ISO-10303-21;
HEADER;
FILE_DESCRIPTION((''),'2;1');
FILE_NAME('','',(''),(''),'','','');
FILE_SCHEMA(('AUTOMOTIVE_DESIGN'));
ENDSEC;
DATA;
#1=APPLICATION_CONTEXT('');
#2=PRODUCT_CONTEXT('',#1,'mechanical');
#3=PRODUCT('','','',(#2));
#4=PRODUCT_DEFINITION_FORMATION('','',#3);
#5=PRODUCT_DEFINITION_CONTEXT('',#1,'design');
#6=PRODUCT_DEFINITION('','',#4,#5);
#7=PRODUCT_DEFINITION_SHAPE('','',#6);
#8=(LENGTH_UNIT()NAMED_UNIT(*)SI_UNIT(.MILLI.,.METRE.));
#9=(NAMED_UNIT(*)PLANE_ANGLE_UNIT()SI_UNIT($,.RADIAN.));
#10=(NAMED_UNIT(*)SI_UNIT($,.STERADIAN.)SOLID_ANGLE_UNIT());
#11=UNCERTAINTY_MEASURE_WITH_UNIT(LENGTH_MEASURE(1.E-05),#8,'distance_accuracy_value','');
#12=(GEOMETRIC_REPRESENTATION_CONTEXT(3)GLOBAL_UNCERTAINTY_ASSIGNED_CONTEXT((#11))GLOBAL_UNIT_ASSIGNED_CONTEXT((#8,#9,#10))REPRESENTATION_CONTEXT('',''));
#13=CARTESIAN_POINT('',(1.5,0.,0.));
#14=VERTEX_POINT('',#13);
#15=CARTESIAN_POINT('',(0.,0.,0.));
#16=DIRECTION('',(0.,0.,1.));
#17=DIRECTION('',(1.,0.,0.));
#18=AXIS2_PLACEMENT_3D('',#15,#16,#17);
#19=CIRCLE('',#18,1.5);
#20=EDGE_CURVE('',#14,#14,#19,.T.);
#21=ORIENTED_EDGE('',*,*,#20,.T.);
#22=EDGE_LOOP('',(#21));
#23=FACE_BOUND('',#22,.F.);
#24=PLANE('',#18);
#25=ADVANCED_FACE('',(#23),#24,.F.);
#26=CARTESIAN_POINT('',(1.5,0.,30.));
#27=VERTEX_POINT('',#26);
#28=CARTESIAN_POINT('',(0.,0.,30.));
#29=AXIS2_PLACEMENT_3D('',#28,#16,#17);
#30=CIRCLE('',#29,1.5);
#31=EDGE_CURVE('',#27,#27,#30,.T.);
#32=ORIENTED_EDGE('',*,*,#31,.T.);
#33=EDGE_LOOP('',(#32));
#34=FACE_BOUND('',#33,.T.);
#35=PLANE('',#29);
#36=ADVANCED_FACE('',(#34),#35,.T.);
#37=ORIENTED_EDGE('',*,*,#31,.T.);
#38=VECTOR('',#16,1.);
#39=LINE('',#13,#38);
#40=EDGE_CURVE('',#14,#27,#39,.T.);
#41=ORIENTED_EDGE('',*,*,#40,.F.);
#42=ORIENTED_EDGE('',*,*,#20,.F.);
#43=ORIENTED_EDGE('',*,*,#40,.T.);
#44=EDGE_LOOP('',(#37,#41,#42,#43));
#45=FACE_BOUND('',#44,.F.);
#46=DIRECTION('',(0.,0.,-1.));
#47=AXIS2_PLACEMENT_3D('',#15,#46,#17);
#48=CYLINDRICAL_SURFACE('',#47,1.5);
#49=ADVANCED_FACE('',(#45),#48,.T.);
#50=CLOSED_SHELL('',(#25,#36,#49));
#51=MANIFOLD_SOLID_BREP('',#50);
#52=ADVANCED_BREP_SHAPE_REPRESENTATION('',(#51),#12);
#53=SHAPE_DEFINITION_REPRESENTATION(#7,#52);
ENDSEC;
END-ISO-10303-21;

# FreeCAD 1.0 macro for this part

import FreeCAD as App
import Part
import Sketcher

doc = App.newDocument("Part")
params = doc.addObject("Spreadsheet::Sheet", "Params")
for row, (alias, value) in enumerate([
    ("sketch1_diameter", "3 mm"),
    ("pad1_length", "30 mm"),
], start=1):
    params.set(f"A{row}", alias)
    params.set(f"B{row}", "=" + value)
    params.setAlias(f"B{row}", alias)

body = doc.addObject("PartDesign::Body", "Body")

sketch1 = body.newObject("Sketcher::SketchObject", "Sketch")
sketch1.AttachmentSupport = (doc.getObject("XY_Plane"), [""])
sketch1.MapMode = "FlatFace"
sketch1.addGeometry(Part.Circle(App.Vector(0, 0, 0), App.Vector(0, 0, 1), 1.5), False)
sketch1.addConstraint(Sketcher.Constraint("Coincident", 0, 3, -1, 1))
sketch1.addConstraint(Sketcher.Constraint("Diameter", 0, 3.0))
sketch1.setExpression("Constraints[1]", "Params.sketch1_diameter")
pad1 = body.newObject("PartDesign::Pad", "Pad")
pad1.Profile = sketch1
pad1.setExpression("Length", "Params.pad1_length")

doc.recompute()
